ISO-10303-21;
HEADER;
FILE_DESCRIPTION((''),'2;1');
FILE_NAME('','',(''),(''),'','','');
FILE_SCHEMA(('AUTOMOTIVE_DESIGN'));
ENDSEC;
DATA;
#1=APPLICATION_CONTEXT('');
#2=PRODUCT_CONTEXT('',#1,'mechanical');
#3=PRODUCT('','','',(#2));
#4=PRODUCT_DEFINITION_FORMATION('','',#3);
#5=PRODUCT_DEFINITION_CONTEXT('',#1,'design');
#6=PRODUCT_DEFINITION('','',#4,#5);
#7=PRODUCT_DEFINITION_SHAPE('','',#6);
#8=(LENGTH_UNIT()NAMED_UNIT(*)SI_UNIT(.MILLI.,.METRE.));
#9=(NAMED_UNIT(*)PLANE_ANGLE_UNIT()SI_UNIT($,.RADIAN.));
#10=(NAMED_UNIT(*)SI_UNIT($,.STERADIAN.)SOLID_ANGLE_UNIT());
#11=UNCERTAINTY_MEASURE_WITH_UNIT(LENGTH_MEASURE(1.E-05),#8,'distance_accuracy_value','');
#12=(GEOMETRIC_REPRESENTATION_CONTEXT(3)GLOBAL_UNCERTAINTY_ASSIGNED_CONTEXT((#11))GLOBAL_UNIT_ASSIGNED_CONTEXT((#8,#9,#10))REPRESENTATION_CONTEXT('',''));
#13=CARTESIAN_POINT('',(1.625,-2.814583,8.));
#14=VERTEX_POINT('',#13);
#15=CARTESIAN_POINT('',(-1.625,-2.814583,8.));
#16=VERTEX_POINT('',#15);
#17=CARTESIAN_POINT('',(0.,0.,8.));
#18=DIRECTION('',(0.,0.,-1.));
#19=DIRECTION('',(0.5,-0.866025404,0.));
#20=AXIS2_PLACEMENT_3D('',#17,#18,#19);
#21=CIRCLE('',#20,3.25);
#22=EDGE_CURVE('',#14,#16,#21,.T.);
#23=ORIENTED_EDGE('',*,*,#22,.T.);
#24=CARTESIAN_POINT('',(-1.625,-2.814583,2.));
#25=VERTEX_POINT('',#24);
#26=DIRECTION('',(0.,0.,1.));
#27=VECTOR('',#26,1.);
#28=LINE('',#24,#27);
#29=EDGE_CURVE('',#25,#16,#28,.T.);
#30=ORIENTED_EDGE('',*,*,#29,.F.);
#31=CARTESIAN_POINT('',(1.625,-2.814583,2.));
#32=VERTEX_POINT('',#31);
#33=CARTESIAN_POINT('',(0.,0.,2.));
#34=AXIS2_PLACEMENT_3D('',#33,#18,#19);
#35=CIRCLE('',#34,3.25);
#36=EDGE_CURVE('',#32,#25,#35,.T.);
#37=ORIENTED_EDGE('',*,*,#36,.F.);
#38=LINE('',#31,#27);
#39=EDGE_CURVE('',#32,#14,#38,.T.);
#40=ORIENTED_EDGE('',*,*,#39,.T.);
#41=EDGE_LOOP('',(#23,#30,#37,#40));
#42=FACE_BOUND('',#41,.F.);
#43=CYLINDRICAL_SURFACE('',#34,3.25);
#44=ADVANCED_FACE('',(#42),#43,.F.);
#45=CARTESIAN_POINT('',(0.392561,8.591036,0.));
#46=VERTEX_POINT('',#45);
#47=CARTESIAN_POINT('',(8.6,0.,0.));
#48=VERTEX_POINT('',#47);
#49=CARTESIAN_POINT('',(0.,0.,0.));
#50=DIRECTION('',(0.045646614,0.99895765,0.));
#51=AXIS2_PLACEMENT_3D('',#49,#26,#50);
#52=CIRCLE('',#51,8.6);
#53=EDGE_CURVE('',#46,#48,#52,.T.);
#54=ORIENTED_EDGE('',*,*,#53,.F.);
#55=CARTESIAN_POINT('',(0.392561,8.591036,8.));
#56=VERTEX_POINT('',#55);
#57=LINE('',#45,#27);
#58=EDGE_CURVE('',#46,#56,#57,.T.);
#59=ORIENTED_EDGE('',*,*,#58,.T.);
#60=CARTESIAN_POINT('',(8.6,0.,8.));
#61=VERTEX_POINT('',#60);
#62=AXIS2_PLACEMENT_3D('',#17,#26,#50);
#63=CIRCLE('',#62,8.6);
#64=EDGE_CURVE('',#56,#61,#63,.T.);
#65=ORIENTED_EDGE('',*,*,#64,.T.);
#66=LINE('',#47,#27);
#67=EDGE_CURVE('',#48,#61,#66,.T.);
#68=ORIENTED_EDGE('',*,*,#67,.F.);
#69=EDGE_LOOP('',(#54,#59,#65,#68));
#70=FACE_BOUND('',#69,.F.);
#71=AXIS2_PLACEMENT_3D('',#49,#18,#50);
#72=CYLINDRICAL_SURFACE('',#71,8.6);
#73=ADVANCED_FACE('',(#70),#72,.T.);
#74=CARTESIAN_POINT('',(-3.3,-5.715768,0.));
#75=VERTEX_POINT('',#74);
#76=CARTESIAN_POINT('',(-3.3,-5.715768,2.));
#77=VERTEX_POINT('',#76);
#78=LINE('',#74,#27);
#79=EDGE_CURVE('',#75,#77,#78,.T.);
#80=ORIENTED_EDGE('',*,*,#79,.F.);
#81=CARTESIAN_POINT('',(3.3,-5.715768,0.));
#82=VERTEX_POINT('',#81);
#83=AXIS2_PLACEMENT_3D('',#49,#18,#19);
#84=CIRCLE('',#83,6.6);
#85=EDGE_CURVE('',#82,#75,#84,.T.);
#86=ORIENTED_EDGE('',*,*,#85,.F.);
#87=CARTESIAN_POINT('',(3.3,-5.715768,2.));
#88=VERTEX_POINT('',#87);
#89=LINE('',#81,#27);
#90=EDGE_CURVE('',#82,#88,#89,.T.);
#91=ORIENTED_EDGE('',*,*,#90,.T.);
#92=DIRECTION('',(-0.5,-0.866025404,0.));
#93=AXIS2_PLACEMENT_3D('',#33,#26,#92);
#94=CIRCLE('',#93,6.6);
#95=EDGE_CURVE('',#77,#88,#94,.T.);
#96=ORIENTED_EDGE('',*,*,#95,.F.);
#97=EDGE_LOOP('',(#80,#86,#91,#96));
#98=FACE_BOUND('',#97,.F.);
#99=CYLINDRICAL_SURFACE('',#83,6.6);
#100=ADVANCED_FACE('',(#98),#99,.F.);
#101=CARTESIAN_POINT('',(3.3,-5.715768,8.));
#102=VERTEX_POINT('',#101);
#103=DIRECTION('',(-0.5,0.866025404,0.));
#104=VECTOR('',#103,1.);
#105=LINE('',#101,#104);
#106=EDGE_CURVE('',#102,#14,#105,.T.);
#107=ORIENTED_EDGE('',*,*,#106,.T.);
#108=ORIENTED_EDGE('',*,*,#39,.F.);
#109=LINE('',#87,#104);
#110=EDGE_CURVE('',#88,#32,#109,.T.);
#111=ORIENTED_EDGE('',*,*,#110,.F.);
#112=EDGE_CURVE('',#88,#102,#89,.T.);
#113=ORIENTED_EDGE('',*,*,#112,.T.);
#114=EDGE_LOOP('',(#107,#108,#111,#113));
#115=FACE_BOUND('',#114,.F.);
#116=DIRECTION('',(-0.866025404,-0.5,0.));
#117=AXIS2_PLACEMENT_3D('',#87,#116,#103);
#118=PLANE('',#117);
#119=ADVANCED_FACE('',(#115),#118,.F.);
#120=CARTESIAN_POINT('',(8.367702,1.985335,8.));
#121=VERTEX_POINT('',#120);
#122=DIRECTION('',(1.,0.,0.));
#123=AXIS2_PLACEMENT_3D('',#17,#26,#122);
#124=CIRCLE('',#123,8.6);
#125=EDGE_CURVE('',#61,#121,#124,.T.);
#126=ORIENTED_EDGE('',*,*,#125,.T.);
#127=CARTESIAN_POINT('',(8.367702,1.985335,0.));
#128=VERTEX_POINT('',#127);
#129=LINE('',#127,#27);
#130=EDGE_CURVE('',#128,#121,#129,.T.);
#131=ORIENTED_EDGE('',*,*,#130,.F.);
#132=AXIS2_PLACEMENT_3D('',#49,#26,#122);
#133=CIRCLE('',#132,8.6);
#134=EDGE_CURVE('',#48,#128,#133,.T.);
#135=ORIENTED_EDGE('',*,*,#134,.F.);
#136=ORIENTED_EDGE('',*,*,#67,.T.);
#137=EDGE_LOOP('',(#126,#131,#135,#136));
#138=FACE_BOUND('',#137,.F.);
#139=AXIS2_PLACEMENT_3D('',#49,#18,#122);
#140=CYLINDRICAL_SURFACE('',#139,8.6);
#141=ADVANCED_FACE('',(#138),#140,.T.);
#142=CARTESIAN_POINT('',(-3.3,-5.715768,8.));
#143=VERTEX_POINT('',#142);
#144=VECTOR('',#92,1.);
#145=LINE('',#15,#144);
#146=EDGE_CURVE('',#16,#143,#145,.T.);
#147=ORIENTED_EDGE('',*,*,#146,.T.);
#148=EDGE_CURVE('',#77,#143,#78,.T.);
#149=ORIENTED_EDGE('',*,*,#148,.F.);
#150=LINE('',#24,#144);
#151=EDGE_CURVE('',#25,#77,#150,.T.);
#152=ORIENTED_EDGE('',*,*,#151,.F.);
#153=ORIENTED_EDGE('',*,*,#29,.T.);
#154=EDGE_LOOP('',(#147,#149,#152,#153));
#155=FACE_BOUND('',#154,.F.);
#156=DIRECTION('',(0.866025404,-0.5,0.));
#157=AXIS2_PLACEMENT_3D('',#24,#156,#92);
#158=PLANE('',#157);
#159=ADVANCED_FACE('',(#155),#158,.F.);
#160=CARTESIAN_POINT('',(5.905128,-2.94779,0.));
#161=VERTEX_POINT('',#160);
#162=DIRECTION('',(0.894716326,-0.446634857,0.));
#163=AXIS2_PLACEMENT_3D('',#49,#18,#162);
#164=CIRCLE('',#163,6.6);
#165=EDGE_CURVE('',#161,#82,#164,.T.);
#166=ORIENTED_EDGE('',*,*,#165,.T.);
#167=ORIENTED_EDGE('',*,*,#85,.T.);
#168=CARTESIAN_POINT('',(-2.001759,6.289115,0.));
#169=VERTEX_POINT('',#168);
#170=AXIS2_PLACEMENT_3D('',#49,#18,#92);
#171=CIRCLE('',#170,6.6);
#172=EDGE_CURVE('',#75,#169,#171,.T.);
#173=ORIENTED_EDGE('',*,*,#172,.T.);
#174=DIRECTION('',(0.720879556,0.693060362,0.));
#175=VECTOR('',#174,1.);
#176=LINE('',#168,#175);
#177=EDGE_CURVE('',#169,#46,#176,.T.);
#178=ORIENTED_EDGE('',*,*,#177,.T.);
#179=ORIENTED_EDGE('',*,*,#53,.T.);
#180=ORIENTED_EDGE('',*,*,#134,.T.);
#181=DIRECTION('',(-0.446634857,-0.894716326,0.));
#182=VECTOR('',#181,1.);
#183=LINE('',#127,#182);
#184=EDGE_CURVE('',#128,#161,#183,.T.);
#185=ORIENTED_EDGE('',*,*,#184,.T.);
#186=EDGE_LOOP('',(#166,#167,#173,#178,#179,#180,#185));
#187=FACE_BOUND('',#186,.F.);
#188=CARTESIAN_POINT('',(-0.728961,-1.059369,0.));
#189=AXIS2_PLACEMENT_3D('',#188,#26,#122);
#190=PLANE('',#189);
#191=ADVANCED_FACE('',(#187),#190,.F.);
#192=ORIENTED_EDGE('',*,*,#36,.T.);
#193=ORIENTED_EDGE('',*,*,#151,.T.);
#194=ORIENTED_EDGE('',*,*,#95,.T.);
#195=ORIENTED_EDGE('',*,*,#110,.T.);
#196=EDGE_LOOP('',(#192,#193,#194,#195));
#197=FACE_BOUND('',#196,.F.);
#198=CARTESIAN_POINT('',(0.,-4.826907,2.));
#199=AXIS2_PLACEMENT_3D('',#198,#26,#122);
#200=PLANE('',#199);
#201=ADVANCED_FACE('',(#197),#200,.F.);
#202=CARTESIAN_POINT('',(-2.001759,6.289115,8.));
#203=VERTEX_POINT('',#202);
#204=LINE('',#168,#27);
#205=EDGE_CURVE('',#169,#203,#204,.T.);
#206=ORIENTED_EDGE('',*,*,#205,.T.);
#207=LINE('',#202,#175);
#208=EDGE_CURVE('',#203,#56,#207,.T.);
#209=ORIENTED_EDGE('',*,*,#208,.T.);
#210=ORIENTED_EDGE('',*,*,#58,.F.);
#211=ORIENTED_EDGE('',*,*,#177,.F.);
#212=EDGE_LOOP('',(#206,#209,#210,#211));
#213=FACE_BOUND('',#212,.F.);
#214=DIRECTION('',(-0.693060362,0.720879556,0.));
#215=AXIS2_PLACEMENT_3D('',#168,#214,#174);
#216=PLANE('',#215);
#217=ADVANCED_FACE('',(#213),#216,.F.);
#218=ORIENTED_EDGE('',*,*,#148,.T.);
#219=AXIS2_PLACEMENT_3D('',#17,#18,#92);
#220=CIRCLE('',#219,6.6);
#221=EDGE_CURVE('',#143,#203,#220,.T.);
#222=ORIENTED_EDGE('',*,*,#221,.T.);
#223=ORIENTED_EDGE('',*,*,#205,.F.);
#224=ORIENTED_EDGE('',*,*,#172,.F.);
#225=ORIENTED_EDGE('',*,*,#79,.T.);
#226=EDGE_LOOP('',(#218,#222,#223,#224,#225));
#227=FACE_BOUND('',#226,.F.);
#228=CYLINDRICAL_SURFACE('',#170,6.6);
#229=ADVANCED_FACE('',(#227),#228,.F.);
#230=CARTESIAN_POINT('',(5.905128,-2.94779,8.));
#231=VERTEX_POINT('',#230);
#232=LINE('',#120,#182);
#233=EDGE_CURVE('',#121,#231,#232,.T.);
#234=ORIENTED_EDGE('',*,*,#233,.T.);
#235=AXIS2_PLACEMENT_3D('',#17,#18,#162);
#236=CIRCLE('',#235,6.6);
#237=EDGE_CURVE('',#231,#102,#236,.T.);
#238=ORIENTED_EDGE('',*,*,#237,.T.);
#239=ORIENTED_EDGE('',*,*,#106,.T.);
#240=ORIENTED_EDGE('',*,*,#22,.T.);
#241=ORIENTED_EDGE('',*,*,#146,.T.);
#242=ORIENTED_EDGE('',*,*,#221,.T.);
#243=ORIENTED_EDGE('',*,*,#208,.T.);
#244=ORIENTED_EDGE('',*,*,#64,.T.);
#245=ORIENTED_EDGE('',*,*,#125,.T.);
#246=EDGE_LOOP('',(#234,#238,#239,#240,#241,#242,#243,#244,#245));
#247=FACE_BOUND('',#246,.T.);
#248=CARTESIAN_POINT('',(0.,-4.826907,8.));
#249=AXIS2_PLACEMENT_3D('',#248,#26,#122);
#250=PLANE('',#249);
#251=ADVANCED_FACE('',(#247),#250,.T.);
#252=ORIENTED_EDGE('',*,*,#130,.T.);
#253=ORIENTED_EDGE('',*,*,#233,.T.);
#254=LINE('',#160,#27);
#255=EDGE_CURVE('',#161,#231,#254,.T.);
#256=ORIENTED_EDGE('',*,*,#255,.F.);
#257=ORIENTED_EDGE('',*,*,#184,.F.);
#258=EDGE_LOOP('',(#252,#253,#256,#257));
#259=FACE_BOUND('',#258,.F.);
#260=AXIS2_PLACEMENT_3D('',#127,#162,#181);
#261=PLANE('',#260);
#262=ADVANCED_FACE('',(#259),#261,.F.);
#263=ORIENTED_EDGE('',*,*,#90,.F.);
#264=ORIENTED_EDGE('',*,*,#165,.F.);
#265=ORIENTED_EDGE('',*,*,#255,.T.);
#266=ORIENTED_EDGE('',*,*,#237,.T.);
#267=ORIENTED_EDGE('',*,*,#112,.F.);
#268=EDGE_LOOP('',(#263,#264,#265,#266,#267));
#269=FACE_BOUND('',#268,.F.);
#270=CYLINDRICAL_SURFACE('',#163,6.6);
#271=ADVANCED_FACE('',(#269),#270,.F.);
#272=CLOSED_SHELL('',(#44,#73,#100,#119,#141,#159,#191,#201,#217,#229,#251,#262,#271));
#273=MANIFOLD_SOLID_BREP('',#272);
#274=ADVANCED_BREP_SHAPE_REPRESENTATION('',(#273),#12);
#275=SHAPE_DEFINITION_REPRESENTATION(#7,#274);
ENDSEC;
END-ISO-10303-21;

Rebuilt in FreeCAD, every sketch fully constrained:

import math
import FreeCAD as App
import Part
import Sketcher
from FreeCAD import Vector
Q = App.Units.Quantity

doc = App.newDocument("Part")
body = doc.addObject("PartDesign::Body", "Body")

# Sketch on XY plane
sketch1 = body.newObject("Sketcher::SketchObject", "Sketch")
sketch1.AttachmentSupport = (doc.getObject("XY_Plane"), [""])
sketch1.MapMode = "FlatFace"
sketch1.addGeometry(Part.ArcOfCircle(Part.Circle(Vector(0, 0, 0), Vector(0, 0, 1), 6.6), math.radians(108), math.radians(240)), False)
sketch1.addGeometry(Part.LineSegment(Vector(-2, 6.3, 0), Vector(0.4, 8.6, 0)), False)
sketch1.addGeometry(Part.ArcOfCircle(Part.Circle(Vector(0, 0, 0), Vector(0, 0, 1), 8.6), math.radians(87), math.radians(360)), False)
sketch1.addGeometry(Part.ArcOfCircle(Part.Circle(Vector(0, 0, 0), Vector(0, 0, 1), 8.6), math.radians(0), math.radians(13.35)), False)
sketch1.addGeometry(Part.LineSegment(Vector(8.4, 2, 0), Vector(5.9, -2.9, 0)), False)
sketch1.addGeometry(Part.ArcOfCircle(Part.Circle(Vector(0, 0, 0), Vector(0, 0, 1), 6.6), math.radians(-60), math.radians(-27)), False)
sketch1.addGeometry(Part.ArcOfCircle(Part.Circle(Vector(0, 0, 0), Vector(0, 0, 1), 6.6), math.radians(-120), math.radians(-60)), False)
sketch1.addConstraint(Sketcher.Constraint("Coincident", 0, 1, 1, 1))
sketch1.addConstraint(Sketcher.Constraint("Coincident", 1, 2, 2, 1))
sketch1.addConstraint(Sketcher.Constraint("Tangent", 2, 2, 3, 1))
sketch1.addConstraint(Sketcher.Constraint("Coincident", 3, 2, 4, 1))
sketch1.addConstraint(Sketcher.Constraint("Tangent", 4, 2, 5, 2))
sketch1.addConstraint(Sketcher.Constraint("Tangent", 5, 1, 6, 2))
sketch1.addConstraint(Sketcher.Constraint("Tangent", 6, 1, 0, 2))
sketch1.addConstraint(Sketcher.Constraint("Coincident", 0, 3, -1, 1))
sketch1.addConstraint(Sketcher.Constraint("Coincident", 2, 3, -1, 1))
sketch1.addConstraint(Sketcher.Constraint("Coincident", 5, 3, -1, 1))
sketch1.addConstraint(Sketcher.Constraint("Equal", 2, 3))
sketch1.addConstraint(Sketcher.Constraint("PointOnObject", 2, 2, -1))
sketch1.addConstraint(Sketcher.Constraint("Horizontal", 5, 1, 6, 1))
sketch1.addConstraint(Sketcher.Constraint("Radius", 0, Q("6.6 mm")))
sketch1.addConstraint(Sketcher.Constraint("Radius", 2, Q("8.6 mm")))
sketch1.addConstraint(Sketcher.Constraint("DistanceX", -1, 1, 5, 1, Q("3.3 mm")))
sketch1.addConstraint(Sketcher.Constraint("DistanceX", 0, 1, -1, 1, Q("2.001759 mm")))
sketch1.addConstraint(Sketcher.Constraint("DistanceX", -1, 1, 1, 2, Q("0.392561 mm")))
sketch1.addConstraint(Sketcher.Constraint("DistanceY", 4, 2, -1, 1, Q("2.94779 mm")))
pad1 = body.newObject("PartDesign::Pad", "Pad")
pad1.Profile = sketch1
pad1.Length = 8

# Sketch on XY plane
sketch2 = body.newObject("Sketcher::SketchObject", "Sketch001")
sketch2.AttachmentSupport = (doc.getObject("XY_Plane"), [""])
sketch2.MapMode = "FlatFace"
sketch2.AttachmentOffset = App.Placement(Vector(0, 0, 2), App.Rotation())
sketch2.addGeometry(Part.LineSegment(Vector(-1.6, -2.8, 0), Vector(-3.3, -5.7, 0)), False)
sketch2.addGeometry(Part.ArcOfCircle(Part.Circle(Vector(0, 0, 0), Vector(0, 0, 1), 6.6), math.radians(-120), math.radians(-60)), False)
sketch2.addGeometry(Part.LineSegment(Vector(3.3, -5.7, 0), Vector(1.6, -2.8, 0)), False)
sketch2.addGeometry(Part.ArcOfCircle(Part.Circle(Vector(0, 0, 0), Vector(0, 0, 1), 3.2), math.radians(-120), math.radians(-60)), False)
sketch2.addConstraint(Sketcher.Constraint("Coincident", 0, 2, 1, 1))
sketch2.addConstraint(Sketcher.Constraint("Coincident", 1, 2, 2, 1))
sketch2.addConstraint(Sketcher.Constraint("Coincident", 2, 2, 3, 2))
sketch2.addConstraint(Sketcher.Constraint("Coincident", 3, 1, 0, 1))
sketch2.addConstraint(Sketcher.Constraint("Coincident", 1, 3, -1, 1))
sketch2.addConstraint(Sketcher.Constraint("Coincident", 3, 3, -1, 1))
sketch2.addConstraint(Sketcher.Constraint("Horizontal", 0, 2, 1, 2))
sketch2.addConstraint(Sketcher.Constraint("Horizontal", 2, 2, 3, 1))
sketch2.addConstraint(Sketcher.Constraint("Radius", 1, Q("6.6 mm")))
sketch2.addConstraint(Sketcher.Constraint("Angle", 0, Q("-120 deg")))
sketch2.addConstraint(Sketcher.Constraint("Radius", 3, Q("3.25 mm")))
sketch2.addConstraint(Sketcher.Constraint("DistanceX", 0, 2, -1, 1, Q("3.3 mm")))
pad2 = body.newObject("PartDesign::Pad", "Pad001")
pad2.Profile = sketch2
pad2.Length = 6

doc.recompute()
